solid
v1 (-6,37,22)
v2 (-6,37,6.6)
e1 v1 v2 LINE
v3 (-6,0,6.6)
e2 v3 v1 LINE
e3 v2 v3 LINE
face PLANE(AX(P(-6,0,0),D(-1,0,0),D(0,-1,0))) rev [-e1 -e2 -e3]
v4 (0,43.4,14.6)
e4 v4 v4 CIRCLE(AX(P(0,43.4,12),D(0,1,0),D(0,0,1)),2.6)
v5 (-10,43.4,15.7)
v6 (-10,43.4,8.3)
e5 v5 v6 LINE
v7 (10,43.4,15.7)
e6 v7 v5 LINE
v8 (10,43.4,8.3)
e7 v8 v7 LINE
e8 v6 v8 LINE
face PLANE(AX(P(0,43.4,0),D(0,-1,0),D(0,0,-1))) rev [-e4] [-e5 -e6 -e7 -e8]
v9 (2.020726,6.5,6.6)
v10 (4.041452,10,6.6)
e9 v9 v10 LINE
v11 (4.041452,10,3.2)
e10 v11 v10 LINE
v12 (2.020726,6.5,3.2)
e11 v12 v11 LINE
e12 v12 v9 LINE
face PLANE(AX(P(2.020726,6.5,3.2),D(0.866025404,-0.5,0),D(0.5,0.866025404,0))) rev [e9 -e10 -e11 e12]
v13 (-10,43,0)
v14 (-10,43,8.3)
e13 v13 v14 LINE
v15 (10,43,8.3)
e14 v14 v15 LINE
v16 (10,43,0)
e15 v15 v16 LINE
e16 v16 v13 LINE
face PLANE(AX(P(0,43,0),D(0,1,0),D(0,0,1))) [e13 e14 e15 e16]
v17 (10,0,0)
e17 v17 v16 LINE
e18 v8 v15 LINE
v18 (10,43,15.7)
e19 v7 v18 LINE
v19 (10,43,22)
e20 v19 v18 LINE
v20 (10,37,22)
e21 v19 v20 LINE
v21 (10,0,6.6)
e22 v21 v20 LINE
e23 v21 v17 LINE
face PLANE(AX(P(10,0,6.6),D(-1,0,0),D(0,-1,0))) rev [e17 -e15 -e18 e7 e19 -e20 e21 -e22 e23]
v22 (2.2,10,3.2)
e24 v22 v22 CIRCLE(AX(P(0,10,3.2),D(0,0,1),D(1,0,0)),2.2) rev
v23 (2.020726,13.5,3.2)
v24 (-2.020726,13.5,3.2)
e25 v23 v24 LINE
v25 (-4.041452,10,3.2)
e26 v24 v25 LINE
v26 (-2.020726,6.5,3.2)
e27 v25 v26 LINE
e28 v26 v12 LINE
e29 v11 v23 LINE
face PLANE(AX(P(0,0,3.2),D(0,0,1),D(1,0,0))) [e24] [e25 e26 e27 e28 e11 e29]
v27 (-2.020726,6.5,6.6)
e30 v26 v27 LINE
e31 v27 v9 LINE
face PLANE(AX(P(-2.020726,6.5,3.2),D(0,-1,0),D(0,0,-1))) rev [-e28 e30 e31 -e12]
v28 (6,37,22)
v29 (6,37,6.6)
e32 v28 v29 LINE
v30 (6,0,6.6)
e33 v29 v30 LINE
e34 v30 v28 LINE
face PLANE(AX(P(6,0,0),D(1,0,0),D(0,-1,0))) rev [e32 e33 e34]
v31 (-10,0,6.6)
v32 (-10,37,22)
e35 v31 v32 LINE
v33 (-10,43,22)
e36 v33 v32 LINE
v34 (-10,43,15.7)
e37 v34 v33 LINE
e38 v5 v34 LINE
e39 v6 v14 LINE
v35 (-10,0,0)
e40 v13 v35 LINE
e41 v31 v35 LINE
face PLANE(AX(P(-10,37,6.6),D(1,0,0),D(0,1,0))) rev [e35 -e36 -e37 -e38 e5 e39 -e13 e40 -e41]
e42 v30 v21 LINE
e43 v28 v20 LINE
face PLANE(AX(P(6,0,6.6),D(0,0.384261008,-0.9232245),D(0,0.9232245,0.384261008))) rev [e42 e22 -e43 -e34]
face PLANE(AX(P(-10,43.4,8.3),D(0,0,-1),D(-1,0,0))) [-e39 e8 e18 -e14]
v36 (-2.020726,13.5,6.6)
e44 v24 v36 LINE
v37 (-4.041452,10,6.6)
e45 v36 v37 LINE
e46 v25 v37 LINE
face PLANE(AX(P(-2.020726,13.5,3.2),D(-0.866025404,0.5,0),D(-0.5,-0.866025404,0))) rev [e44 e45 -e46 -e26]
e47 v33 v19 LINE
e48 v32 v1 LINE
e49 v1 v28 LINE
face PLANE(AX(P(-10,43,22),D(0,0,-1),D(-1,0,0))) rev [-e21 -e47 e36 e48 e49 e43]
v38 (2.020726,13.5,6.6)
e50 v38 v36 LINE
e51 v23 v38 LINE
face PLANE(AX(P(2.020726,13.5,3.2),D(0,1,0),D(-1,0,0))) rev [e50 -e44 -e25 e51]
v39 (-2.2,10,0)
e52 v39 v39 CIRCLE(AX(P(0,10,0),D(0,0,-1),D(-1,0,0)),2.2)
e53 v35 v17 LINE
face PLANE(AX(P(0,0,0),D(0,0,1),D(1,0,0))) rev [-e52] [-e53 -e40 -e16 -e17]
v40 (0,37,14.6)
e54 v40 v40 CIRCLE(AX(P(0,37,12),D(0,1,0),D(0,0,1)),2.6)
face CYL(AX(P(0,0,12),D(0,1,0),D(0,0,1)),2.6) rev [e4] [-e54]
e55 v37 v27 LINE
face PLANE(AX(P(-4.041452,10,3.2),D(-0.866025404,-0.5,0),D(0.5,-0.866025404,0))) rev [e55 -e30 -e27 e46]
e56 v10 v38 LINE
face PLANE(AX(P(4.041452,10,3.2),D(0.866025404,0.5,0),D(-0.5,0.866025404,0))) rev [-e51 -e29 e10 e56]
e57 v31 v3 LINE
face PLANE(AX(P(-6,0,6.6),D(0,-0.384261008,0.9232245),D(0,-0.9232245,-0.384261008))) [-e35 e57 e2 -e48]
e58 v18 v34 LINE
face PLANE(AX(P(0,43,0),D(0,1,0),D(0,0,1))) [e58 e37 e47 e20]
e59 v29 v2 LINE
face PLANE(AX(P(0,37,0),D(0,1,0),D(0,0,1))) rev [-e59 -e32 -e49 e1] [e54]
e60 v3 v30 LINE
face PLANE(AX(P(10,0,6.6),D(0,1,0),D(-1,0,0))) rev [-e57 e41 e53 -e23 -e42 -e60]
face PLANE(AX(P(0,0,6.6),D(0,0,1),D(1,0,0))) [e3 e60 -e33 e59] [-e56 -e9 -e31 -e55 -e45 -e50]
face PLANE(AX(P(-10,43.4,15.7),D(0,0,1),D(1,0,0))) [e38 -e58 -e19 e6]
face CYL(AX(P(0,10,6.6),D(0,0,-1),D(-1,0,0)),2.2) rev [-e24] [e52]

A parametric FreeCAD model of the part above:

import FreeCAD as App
import Part
import Sketcher
from FreeCAD import Vector
Q = App.Units.Quantity

doc = App.newDocument("Part")
body = doc.addObject("PartDesign::Body", "Body")

# Sketch on XY plane
sketch1 = body.newObject("Sketcher::SketchObject", "Sketch")
sketch1.AttachmentSupport = (doc.getObject("XY_Plane"), [""])
sketch1.MapMode = "FlatFace"
sketch1.addGeometry([
    Part.LineSegment(Vector(-10, 37, 0), Vector(-10, 0, 0)),
    Part.LineSegment(Vector(-10, 0, 0), Vector(10, 0, 0)),
    Part.LineSegment(Vector(10, 0, 0), Vector(10, 37, 0)),
    Part.LineSegment(Vector(10, 37, 0), Vector(-10, 37, 0)),
], False)
sketch1.addConstraint([
    Sketcher.Constraint("Coincident", 0, 2, 1, 1),
    Sketcher.Constraint("Coincident", 1, 2, 2, 1),
    Sketcher.Constraint("Coincident", 2, 2, 3, 1),
    Sketcher.Constraint("Coincident", 3, 2, 0, 1),
    Sketcher.Constraint("Vertical", 0),
    Sketcher.Constraint("Horizontal", 1),
    Sketcher.Constraint("Vertical", 2),
    Sketcher.Constraint("Horizontal", 3),
    Sketcher.Constraint("Symmetric", 0, 2, 1, 2, -1, 1),
    Sketcher.Constraint("DistanceX", 1, 1, 1, 2, 20.0),
    Sketcher.Constraint("DistanceY", 0, 2, 0, 1, 37.0),
])
pad1 = body.newObject("PartDesign::Pad", "Pad")
pad1.Profile = sketch1
pad1.Length = 6.6

# Sketch on XY plane
sketch2 = body.newObject("Sketcher::SketchObject", "Sketch001")
sketch2.AttachmentSupport = (doc.getObject("XY_Plane"), [""])
sketch2.MapMode = "FlatFace"
sketch2.addGeometry(Part.Circle(Vector(0, 10, 0), Vector(0, 0, 1), 2.2), False)
sketch2.addConstraint([
    Sketcher.Constraint("PointOnObject", 0, 3, -2),
    Sketcher.Constraint("Diameter", 0, 4.4),
    Sketcher.Constraint("DistanceY", -1, 1, 0, 3, 10.0),
])
pocket1 = body.newObject("PartDesign::Pocket", "Pocket")
pocket1.Profile = sketch2
pocket1.Type = "ThroughAll"
pocket1.Reversed = True

# Sketch on XY plane
sketch3 = body.newObject("Sketcher::SketchObject", "Sketch002")
sketch3.AttachmentSupport = (doc.getObject("XY_Plane"), [""])
sketch3.MapMode = "FlatFace"
sketch3.AttachmentOffset = App.Placement(Vector(0, 0, 6.6), App.Rotation())
sketch3.addGeometry([
    Part.LineSegment(Vector(4.041452, 10, 0), Vector(2.020726, 13.5, 0)),  # 0
    Part.LineSegment(Vector(2.020726, 13.5, 0), Vector(-2.020726, 13.5, 0)),  # 1
    Part.LineSegment(Vector(-2.020726, 13.5, 0), Vector(-4.041452, 10, 0)),  # 2
    Part.LineSegment(Vector(-4.041452, 10, 0), Vector(-2.020726, 6.5, 0)),  # 3
    Part.LineSegment(Vector(-2.020726, 6.5, 0), Vector(2.020726, 6.5, 0)),  # 4
    Part.LineSegment(Vector(2.020726, 6.5, 0), Vector(4.041452, 10, 0)),  # 5
], False)
sketch3.addConstraint([
    Sketcher.Constraint("Coincident", 0, 2, 1, 1),
    Sketcher.Constraint("Coincident", 1, 2, 2, 1),
    Sketcher.Constraint("Coincident", 2, 2, 3, 1),
    Sketcher.Constraint("Coincident", 3, 2, 4, 1),
    Sketcher.Constraint("Coincident", 4, 2, 5, 1),
    Sketcher.Constraint("Coincident", 5, 2, 0, 1),
    Sketcher.Constraint("Horizontal", 1),
    Sketcher.Constraint("Horizontal", 4),
    Sketcher.Constraint("Symmetric", 2, 2, 5, 2, -2),
    Sketcher.Constraint("Parallel", 0, 3),
    Sketcher.Constraint("Parallel", 2, 5),
    Sketcher.Constraint("Vertical", 1, 2, 3, 2),
    Sketcher.Constraint("Vertical", 0, 2, 4, 2),
    Sketcher.Constraint("Angle", 0, Q("120 deg")),
    Sketcher.Constraint("DistanceY", -1, 1, 2, 2, 10.0),
    Sketcher.Constraint("DistanceY", 3, 2, 1, 2, 7.0),
    Sketcher.Constraint("DistanceX", 1, 2, 1, 1, 4.041452),
])
pocket2 = body.newObject("PartDesign::Pocket", "Pocket001")
pocket2.Profile = sketch3
pocket2.Length = 3.4

# Sketch on XZ plane
sketch4 = body.newObject("Sketcher::SketchObject", "Sketch003")
sketch4.AttachmentSupport = (doc.getObject("XZ_Plane"), [""])
sketch4.MapMode = "FlatFace"
sketch4.AttachmentOffset = App.Placement(Vector(0, 0, -37), App.Rotation())
sketch4.addGeometry([
    Part.LineSegment(Vector(-10, 0, 0), Vector(-10, 22, 0)),
    Part.LineSegment(Vector(-10, 22, 0), Vector(10, 22, 0)),
    Part.LineSegment(Vector(10, 22, 0), Vector(10, 0, 0)),
    Part.LineSegment(Vector(10, 0, 0), Vector(-10, 0, 0)),
], False)
sketch4.addConstraint([
    Sketcher.Constraint("Coincident", 0, 2, 1, 1),
    Sketcher.Constraint("Coincident", 1, 2, 2, 1),
    Sketcher.Constraint("Coincident", 2, 2, 3, 1),
    Sketcher.Constraint("Coincident", 3, 2, 0, 1),
    Sketcher.Constraint("Vertical", 0),
    Sketcher.Constraint("Horizontal", 1),
    Sketcher.Constraint("Vertical", 2),
    Sketcher.Constraint("Horizontal", 3),
    Sketcher.Constraint("Symmetric", 2, 2, 3, 2, -1, 1),
    Sketcher.Constraint("DistanceX", 1, 1, 1, 2, 20.0),
    Sketcher.Constraint("DistanceY", 0, 1, 0, 2, 22.0),
])
pad2 = body.newObject("PartDesign::Pad", "Pad001")
pad2.Profile = sketch4
pad2.Length = 6
pad2.Reversed = True

# Sketch on XZ plane
sketch5 = body.newObject("Sketcher::SketchObject", "Sketch004")
sketch5.AttachmentSupport = (doc.getObject("XZ_Plane"), [""])
sketch5.MapMode = "FlatFace"
sketch5.AttachmentOffset = App.Placement(Vector(0, 0, -43), App.Rotation())
sketch5.addGeometry([
    Part.LineSegment(Vector(-10, 15.7, 0), Vector(-10, 8.3, 0)),
    Part.LineSegment(Vector(-10, 8.3, 0), Vector(10, 8.3, 0)),
    Part.LineSegment(Vector(10, 8.3, 0), Vector(10, 15.7, 0)),
    Part.LineSegment(Vector(10, 15.7, 0), Vector(-10, 15.7, 0)),
], False)
sketch5.addConstraint([
    Sketcher.Constraint("Coincident", 0, 2, 1, 1),
    Sketcher.Constraint("Coincident", 1, 2, 2, 1),
    Sketcher.Constraint("Coincident", 2, 2, 3, 1),
    Sketcher.Constraint("Coincident", 3, 2, 0, 1),
    Sketcher.Constraint("Vertical", 0),
    Sketcher.Constraint("Horizontal", 1),
    Sketcher.Constraint("Vertical", 2),
    Sketcher.Constraint("Horizontal", 3),
    Sketcher.Constraint("DistanceX", 1, 1, 1, 2, 20.0),
    Sketcher.Constraint("DistanceY", 0, 2, 0, 1, 7.4),
    Sketcher.Constraint("DistanceX", 0, 2, -1, 1, 10.0),
    Sketcher.Constraint("DistanceY", -1, 1, 0, 2, 8.3),
])
pad3 = body.newObject("PartDesign::Pad", "Pad002")
pad3.Profile = sketch5
pad3.Length = 0.4
pad3.Reversed = True

# Sketch on XZ plane
sketch6 = body.newObject("Sketcher::SketchObject", "Sketch005")
sketch6.AttachmentSupport = (doc.getObject("XZ_Plane"), [""])
sketch6.MapMode = "FlatFace"
sketch6.AttachmentOffset = App.Placement(Vector(0, 0, -43.4), App.Rotation())
sketch6.addGeometry(Part.Circle(Vector(0, 12, 0), Vector(0, 0, 1), 2.6), False)
sketch6.addConstraint([
    Sketcher.Constraint("PointOnObject", 0, 3, -2),
    Sketcher.Constraint("Diameter", 0, 5.2),
    Sketcher.Constraint("DistanceY", -1, 1, 0, 3, 12.0),
])
pocket3 = body.newObject("PartDesign::Pocket", "Pocket002")
pocket3.Profile = sketch6
pocket3.Type = "ThroughAll"
pocket3.Reversed = True

# Sketch on YZ plane
sketch7 = body.newObject("Sketcher::SketchObject", "Sketch006")
sketch7.AttachmentSupport = (doc.getObject("YZ_Plane"), [""])
sketch7.MapMode = "FlatFace"
sketch7.AttachmentOffset = App.Placement(Vector(0, 0, -10), App.Rotation())
sketch7.addGeometry([
    Part.LineSegment(Vector(37, 22, 0), Vector(37, 6.6, 0)),
    Part.LineSegment(Vector(37, 6.6, 0), Vector(0, 6.6, 0)),
    Part.LineSegment(Vector(0, 6.6, 0), Vector(37, 22, 0)),
], False)
sketch7.addConstraint([
    Sketcher.Constraint("Coincident", 0, 2, 1, 1),
    Sketcher.Constraint("Coincident", 1, 2, 2, 1),
    Sketcher.Constraint("Coincident", 2, 2, 0, 1),
    Sketcher.Constraint("Vertical", 0),
    Sketcher.Constraint("Horizontal", 1),
    Sketcher.Constraint("PointOnObject", 1, 2, -2),
    Sketcher.Constraint("DistanceX", 1, 2, 1, 1, 37.0),
    Sketcher.Constraint("DistanceY", 0, 2, 0, 1, 15.4),
    Sketcher.Constraint("DistanceY", -1, 1, 2, 2, 22.0),
])
pad4 = body.newObject("PartDesign::Pad", "Pad003")
pad4.Profile = sketch7
pad4.Length = 4
doc.recompute()

mirrored = body.newObject("PartDesign::Mirrored", "Mirrored")
mirrored.Originals = [pad4]
mirrored.MirrorPlane = (doc.getObject("YZ_Plane"), [""])
body.Tip = mirrored

doc.recompute()
